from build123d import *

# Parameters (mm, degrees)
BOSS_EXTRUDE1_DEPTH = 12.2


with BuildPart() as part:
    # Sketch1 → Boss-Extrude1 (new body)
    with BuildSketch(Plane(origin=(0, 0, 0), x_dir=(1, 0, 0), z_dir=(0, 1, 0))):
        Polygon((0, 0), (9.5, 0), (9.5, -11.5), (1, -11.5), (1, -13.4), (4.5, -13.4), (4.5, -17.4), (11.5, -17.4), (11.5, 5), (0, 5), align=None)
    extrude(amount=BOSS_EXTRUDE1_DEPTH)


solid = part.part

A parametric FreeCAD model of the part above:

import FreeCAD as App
import Part
import Sketcher
Q = App.Units.Quantity


def add_polygon(sketch, points):
    """Adds a closed chain of lines whose ends are joined by coincident constraints."""
    first, n = sketch.GeometryCount, len(points)
    for a, b in zip(points, points[1:] + points[:1]):
        sketch.addGeometry(Part.LineSegment(App.Vector(*a, 0), App.Vector(*b, 0)), False)
    for i in range(n):
        sketch.addConstraint(Sketcher.Constraint("Coincident", first + i, 2, first + (i + 1) % n, 1))

doc = App.newDocument("Part")
body = doc.addObject("PartDesign::Body", "Body")

sketch1 = doc.addObject("Sketcher::SketchObject", "Sketch")
body.addObject(sketch1)
sketch1.AttachmentSupport = (doc.XZ_Plane, [""])
sketch1.MapMode = "FlatFace"
add_polygon(sketch1, [(0, 0), (9.5, 0), (9.5, 11.5), (1, 11.5), (1, 13.4), (4.5, 13.4), (4.5, 17.4), (11.5, 17.4), (11.5, -5), (0, -5)])
sketch1.addConstraint([
    Sketcher.Constraint("Horizontal", 0),
    Sketcher.Constraint("Vertical", 1),
    Sketcher.Constraint("Horizontal", 2),
    Sketcher.Constraint("Vertical", 3),
    Sketcher.Constraint("Horizontal", 4),
    Sketcher.Constraint("Vertical", 5),
    Sketcher.Constraint("Horizontal", 6),
    Sketcher.Constraint("Vertical", 7),
    Sketcher.Constraint("Horizontal", 8),
    Sketcher.Constraint("Vertical", 9),
    Sketcher.Constraint("Coincident", 9, 2, -1, 1),
    Sketcher.Constraint("Equal", 8, 1),
    Sketcher.Constraint("DistanceX", 6, 1, 6, 2, Q("7 mm")),
    Sketcher.Constraint("DistanceY", 5, 1, 5, 2, Q("4 mm")),
    Sketcher.Constraint("DistanceY", 9, 1, 9, 2, Q("5 mm")),
    Sketcher.Constraint("DistanceX", 0, 1, 0, 2, Q("9.5 mm")),
    Sketcher.Constraint("DistanceX", 2, 2, 2, 1, Q("8.5 mm")),
    Sketcher.Constraint("DistanceX", 4, 1, 4, 2, Q("3.5 mm")),
    Sketcher.Constraint("DistanceY", 3, 1, 3, 2, Q("1.9 mm")),
])
pad1 = doc.addObject("PartDesign::Pad", "Pad")
body.addObject(pad1)
pad1.Profile = sketch1
pad1.Length = 12.2
pad1.Reversed = True

doc.recompute()
